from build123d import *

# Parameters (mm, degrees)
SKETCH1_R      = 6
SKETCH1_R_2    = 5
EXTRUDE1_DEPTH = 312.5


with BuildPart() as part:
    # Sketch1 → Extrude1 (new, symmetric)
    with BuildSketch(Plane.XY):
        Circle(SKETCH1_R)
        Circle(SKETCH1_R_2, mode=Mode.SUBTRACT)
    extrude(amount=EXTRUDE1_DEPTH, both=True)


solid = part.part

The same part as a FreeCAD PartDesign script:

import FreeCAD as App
import Part
import Sketcher

V = App.Vector

doc = App.newDocument("Part")
body = doc.addObject("PartDesign::Body", "Body")

# Sketch on XY plane
sketch1 = body.newObject("Sketcher::SketchObject", "Sketch")
sketch1.AttachmentSupport = (doc.getObject("XY_Plane"), [""])
sketch1.MapMode = "FlatFace"
sketch1.addGeometry(Part.Circle(V(0, 0, 0), V(0, 0, 1), 6), False)
sketch1.addGeometry(Part.Circle(V(0, 0, 0), V(0, 0, 1), 5), False)
sketch1.addConstraint(Sketcher.Constraint("Coincident", 0, 3, -1, 1))
sketch1.addConstraint(Sketcher.Constraint("Coincident", 1, 3, -1, 1))
sketch1.addConstraint(Sketcher.Constraint("Diameter", 0, 12.0))
sketch1.addConstraint(Sketcher.Constraint("Diameter", 1, 10.0))
pad1 = body.newObject("PartDesign::Pad", "Pad")
pad1.Profile = sketch1
pad1.Length = 625
pad1.Midplane = True

doc.recompute()
